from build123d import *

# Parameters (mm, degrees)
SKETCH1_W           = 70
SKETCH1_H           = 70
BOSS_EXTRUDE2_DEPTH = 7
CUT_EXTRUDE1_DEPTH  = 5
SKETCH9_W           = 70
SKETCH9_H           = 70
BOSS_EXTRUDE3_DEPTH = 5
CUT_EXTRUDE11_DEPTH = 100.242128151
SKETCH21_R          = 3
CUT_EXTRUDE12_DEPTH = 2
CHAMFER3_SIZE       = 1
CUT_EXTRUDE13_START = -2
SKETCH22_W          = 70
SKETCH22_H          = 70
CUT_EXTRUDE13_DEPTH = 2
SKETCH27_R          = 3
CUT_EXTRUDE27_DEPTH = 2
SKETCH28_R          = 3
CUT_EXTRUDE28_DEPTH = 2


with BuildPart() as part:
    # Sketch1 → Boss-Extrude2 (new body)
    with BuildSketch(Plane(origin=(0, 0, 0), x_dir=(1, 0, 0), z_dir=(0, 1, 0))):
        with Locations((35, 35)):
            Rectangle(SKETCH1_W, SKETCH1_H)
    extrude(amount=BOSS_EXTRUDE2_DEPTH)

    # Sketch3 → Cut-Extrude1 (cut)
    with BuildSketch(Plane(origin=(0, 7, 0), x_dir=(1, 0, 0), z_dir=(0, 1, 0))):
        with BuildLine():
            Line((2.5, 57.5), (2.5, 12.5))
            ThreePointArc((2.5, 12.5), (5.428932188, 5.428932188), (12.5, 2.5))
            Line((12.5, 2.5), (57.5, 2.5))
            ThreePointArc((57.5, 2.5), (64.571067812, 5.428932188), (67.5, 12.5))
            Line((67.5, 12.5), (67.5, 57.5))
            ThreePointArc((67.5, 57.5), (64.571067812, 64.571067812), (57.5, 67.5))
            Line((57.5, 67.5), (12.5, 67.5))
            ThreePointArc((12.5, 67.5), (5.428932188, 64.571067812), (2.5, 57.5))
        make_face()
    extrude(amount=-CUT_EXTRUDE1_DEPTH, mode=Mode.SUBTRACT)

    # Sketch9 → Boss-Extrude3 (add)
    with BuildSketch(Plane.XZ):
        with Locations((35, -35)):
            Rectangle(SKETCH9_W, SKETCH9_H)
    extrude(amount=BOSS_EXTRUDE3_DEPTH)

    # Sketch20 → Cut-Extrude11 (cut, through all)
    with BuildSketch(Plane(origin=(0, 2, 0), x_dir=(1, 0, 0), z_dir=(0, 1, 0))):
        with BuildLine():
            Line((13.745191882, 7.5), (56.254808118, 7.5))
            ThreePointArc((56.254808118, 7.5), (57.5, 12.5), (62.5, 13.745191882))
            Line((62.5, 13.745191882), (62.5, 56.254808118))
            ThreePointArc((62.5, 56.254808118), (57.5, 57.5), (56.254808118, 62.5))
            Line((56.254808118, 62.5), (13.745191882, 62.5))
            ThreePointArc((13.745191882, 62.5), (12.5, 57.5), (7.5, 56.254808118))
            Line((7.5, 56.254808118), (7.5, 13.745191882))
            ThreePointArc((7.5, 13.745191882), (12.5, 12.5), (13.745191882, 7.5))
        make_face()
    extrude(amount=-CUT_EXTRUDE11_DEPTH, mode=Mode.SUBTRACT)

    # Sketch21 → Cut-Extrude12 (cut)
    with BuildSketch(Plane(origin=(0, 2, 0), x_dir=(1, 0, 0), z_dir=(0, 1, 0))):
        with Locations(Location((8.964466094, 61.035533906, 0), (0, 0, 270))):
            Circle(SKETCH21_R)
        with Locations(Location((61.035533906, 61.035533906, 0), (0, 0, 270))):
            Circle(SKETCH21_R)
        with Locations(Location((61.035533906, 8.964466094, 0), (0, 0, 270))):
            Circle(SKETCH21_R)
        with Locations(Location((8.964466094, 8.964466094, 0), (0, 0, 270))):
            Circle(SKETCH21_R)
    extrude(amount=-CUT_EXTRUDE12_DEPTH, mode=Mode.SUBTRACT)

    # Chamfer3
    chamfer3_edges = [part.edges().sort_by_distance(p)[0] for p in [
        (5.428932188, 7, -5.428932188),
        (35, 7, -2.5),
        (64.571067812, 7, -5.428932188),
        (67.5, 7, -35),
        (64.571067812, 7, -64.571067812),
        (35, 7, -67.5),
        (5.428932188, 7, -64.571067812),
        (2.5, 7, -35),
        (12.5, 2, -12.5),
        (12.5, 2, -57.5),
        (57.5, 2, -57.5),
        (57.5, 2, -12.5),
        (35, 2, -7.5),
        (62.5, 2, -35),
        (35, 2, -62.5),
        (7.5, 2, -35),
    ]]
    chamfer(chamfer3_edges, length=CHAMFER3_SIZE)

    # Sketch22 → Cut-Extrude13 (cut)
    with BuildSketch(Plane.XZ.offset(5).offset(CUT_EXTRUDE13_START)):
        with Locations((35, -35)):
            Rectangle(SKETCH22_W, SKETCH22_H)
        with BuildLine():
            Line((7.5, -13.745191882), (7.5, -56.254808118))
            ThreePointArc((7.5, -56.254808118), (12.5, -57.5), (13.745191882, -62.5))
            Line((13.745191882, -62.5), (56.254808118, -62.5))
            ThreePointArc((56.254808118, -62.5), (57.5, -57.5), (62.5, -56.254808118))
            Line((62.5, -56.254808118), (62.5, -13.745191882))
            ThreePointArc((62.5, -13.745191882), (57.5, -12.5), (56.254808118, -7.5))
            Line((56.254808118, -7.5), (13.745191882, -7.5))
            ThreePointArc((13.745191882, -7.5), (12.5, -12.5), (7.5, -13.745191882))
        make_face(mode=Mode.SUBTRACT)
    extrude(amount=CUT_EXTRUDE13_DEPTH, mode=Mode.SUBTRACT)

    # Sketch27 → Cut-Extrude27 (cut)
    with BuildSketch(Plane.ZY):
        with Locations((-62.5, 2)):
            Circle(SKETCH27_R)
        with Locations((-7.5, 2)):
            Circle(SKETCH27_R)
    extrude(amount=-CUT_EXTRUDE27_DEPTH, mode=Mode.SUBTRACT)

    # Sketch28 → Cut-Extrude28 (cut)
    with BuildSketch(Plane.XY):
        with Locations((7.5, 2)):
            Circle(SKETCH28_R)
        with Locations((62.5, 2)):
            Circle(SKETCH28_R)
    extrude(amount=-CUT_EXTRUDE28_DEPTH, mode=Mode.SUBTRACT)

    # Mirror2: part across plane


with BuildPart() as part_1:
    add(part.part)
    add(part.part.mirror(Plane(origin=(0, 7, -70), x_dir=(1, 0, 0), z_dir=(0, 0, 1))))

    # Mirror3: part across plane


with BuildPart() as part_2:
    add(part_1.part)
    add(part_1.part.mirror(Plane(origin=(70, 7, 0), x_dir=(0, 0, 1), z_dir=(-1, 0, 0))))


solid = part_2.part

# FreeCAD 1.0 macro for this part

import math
import FreeCAD as App
import Part
import Sketcher
from FreeCAD import Vector


def edges_at(feature, points):
    """Names of the edges that pass closest to the given points."""
    edges = feature.Shape.Edges
    near = lambda p: min(range(len(edges)), key=lambda i: edges[i].distToShape(Part.Vertex(*p))[0])
    return sorted({f"Edge{near(p) + 1}" for p in points})


def add_polygon(sketch, points):
    """Adds a closed chain of lines whose ends are joined by coincident constraints."""
    first, n = sketch.GeometryCount, len(points)
    for a, b in zip(points, points[1:] + points[:1]):
        sketch.addGeometry(Part.LineSegment(App.Vector(*a, 0), App.Vector(*b, 0)), False)
    for i in range(n):
        sketch.addConstraint(Sketcher.Constraint("Coincident", first + i, 2, first + (i + 1) % n, 1))

doc = App.newDocument("Part")
body = doc.addObject("PartDesign::Body", "Body")

# Sketch on XZ plane
sketch1 = doc.addObject("Sketcher::SketchObject", "Sketch")
body.addObject(sketch1)
sketch1.AttachmentSupport = (doc.XZ_Plane, [""])
sketch1.MapMode = "FlatFace"
add_polygon(sketch1, [(0, -70), (0, 0), (70, 0), (70, -70)])  # lines 0-3
sketch1.addConstraint(Sketcher.Constraint("Vertical", 0))
sketch1.addConstraint(Sketcher.Constraint("Horizontal", 1))
sketch1.addConstraint(Sketcher.Constraint("Vertical", 2))
sketch1.addConstraint(Sketcher.Constraint("Horizontal", 3))
sketch1.addConstraint(Sketcher.Constraint("Coincident", 0, 2, -1, 1))
sketch1.addConstraint(Sketcher.Constraint("Equal", 3, 0))
sketch1.addConstraint(Sketcher.Constraint("DistanceX", 1, 1, 1, 2, 70.0))
pad1 = doc.addObject("PartDesign::Pad", "Pad")
body.addObject(pad1)
pad1.Profile = sketch1
pad1.Length = 7
pad1.Reversed = True

# Sketch on XZ plane
sketch2 = doc.addObject("Sketcher::SketchObject", "Sketch001")
body.addObject(sketch2)
sketch2.AttachmentSupport = (doc.XZ_Plane, [""])
sketch2.MapMode = "FlatFace"
sketch2.AttachmentOffset = App.Placement(Vector(0, 0, -7), App.Rotation())
sketch2.addGeometry(Part.LineSegment(Vector(2.5, -57.5, 0), Vector(2.5, -12.5, 0)), False)
sketch2.addGeometry(Part.ArcOfCircle(Part.Circle(Vector(12.5, -12.5, 0), Vector(0, 0, 1), 10), math.radians(90), math.radians(180)), False)
sketch2.addGeometry(Part.LineSegment(Vector(12.5, -2.5, 0), Vector(57.5, -2.5, 0)), False)
sketch2.addGeometry(Part.ArcOfCircle(Part.Circle(Vector(57.5, -12.5, 0), Vector(0, 0, 1), 10), math.radians(0), math.radians(90)), False)
sketch2.addGeometry(Part.LineSegment(Vector(67.5, -12.5, 0), Vector(67.5, -57.5, 0)), False)
sketch2.addGeometry(Part.ArcOfCircle(Part.Circle(Vector(57.5, -57.5, 0), Vector(0, 0, 1), 10), math.radians(-90), math.radians(0)), False)
sketch2.addGeometry(Part.LineSegment(Vector(57.5, -67.5, 0), Vector(12.5, -67.5, 0)), False)
sketch2.addGeometry(Part.ArcOfCircle(Part.Circle(Vector(12.5, -57.5, 0), Vector(0, 0, 1), 10), math.radians(180), math.radians(270)), False)
sketch2.addConstraint(Sketcher.Constraint("Tangent", 0, 2, 1, 2))
sketch2.addConstraint(Sketcher.Constraint("Tangent", 1, 1, 2, 1))
sketch2.addConstraint(Sketcher.Constraint("Tangent", 2, 2, 3, 2))
sketch2.addConstraint(Sketcher.Constraint("Tangent", 3, 1, 4, 1))
sketch2.addConstraint(Sketcher.Constraint("Tangent", 4, 2, 5, 2))
sketch2.addConstraint(Sketcher.Constraint("Tangent", 5, 1, 6, 1))
sketch2.addConstraint(Sketcher.Constraint("Tangent", 6, 2, 7, 2))
sketch2.addConstraint(Sketcher.Constraint("Tangent", 7, 1, 0, 1))
sketch2.addConstraint(Sketcher.Constraint("Vertical", 0))
sketch2.addConstraint(Sketcher.Constraint("Horizontal", 2))
sketch2.addConstraint(Sketcher.Constraint("Vertical", 4))
sketch2.addConstraint(Sketcher.Constraint("Horizontal", 6))
sketch2.addConstraint(Sketcher.Constraint("Equal", 1, 3))
sketch2.addConstraint(Sketcher.Constraint("Equal", 3, 5))
sketch2.addConstraint(Sketcher.Constraint("Equal", 5, 7))
sketch2.addConstraint(Sketcher.Constraint("Equal", 6, 0))
sketch2.addConstraint(Sketcher.Constraint("Radius", 1, 10.0))
sketch2.addConstraint(Sketcher.Constraint("DistanceX", 2, 1, 2, 2, 45.0))
sketch2.addConstraint(Sketcher.Constraint("DistanceX", -1, 1, 1, 3, 12.5))
sketch2.addConstraint(Sketcher.Constraint("DistanceY", 1, 3, -1, 1, 12.5))
pocket1 = doc.addObject("PartDesign::Pocket", "Pocket")
body.addObject(pocket1)
pocket1.Profile = sketch2
pocket1.Length = 5
pocket1.Reversed = True

# Sketch on XZ plane
sketch3 = doc.addObject("Sketcher::SketchObject", "Sketch002")
body.addObject(sketch3)
sketch3.AttachmentSupport = (doc.XZ_Plane, [""])
sketch3.MapMode = "FlatFace"
add_polygon(sketch3, [(0, 0), (0, -70), (70, -70), (70, 0)])  # lines 0-3
sketch3.addConstraint(Sketcher.Constraint("Vertical", 0))
sketch3.addConstraint(Sketcher.Constraint("Horizontal", 1))
sketch3.addConstraint(Sketcher.Constraint("Vertical", 2))
sketch3.addConstraint(Sketcher.Constraint("Horizontal", 3))
sketch3.addConstraint(Sketcher.Constraint("Coincident", 3, 2, -1, 1))
sketch3.addConstraint(Sketcher.Constraint("Equal", 3, 0))
sketch3.addConstraint(Sketcher.Constraint("DistanceX", 1, 1, 1, 2, 70.0))
pad2 = doc.addObject("PartDesign::Pad", "Pad001")
body.addObject(pad2)
pad2.Profile = sketch3
pad2.Length = 5

# Sketch on XZ plane
sketch4 = doc.addObject("Sketcher::SketchObject", "Sketch003")
body.addObject(sketch4)
sketch4.AttachmentSupport = (doc.XZ_Plane, [""])
sketch4.MapMode = "FlatFace"
sketch4.AttachmentOffset = App.Placement(Vector(0, 0, -2), App.Rotation())
sketch4.addGeometry(Part.LineSegment(Vector(13.745192, -7.5, 0), Vector(56.254808, -7.5, 0)), False)
sketch4.addGeometry(Part.ArcOfCircle(Part.Circle(Vector(61.035534, -8.964466, 0), Vector(0, 0, 1), 5), math.radians(162.968752), math.radians(287.031248)), False)
sketch4.addGeometry(Part.LineSegment(Vector(62.5, -13.745192, 0), Vector(62.5, -56.254808, 0)), False)
sketch4.addGeometry(Part.ArcOfCircle(Part.Circle(Vector(61.035534, -61.035534, 0), Vector(0, 0, 1), 5), math.radians(72.968752), math.radians(197.031248)), False)
sketch4.addGeometry(Part.LineSegment(Vector(56.254808, -62.5, 0), Vector(13.745192, -62.5, 0)), False)
sketch4.addGeometry(Part.ArcOfCircle(Part.Circle(Vector(8.964466, -61.035534, 0), Vector(0, 0, 1), 5), math.radians(-17.031248), math.radians(107.031248)), False)
sketch4.addGeometry(Part.LineSegment(Vector(7.5, -56.254808, 0), Vector(7.5, -13.745192, 0)), False)
sketch4.addGeometry(Part.ArcOfCircle(Part.Circle(Vector(8.964466, -8.964466, 0), Vector(0, 0, 1), 5), math.radians(-107.031248), math.radians(17.031248)), False)
sketch4.addConstraint(Sketcher.Constraint("Coincident", 0, 2, 1, 1))
sketch4.addConstraint(Sketcher.Constraint("Coincident", 1, 2, 2, 1))
sketch4.addConstraint(Sketcher.Constraint("Coincident", 2, 2, 3, 1))
sketch4.addConstraint(Sketcher.Constraint("Coincident", 3, 2, 4, 1))
sketch4.addConstraint(Sketcher.Constraint("Coincident", 4, 2, 5, 1))
sketch4.addConstraint(Sketcher.Constraint("Coincident", 5, 2, 6, 1))
sketch4.addConstraint(Sketcher.Constraint("Coincident", 6, 2, 7, 1))
sketch4.addConstraint(Sketcher.Constraint("Coincident", 7, 2, 0, 1))
sketch4.addConstraint(Sketcher.Constraint("Horizontal", 0))
sketch4.addConstraint(Sketcher.Constraint("Vertical", 2))
sketch4.addConstraint(Sketcher.Constraint("Horizontal", 4))
sketch4.addConstraint(Sketcher.Constraint("Vertical", 6))
sketch4.addConstraint(Sketcher.Constraint("Equal", 1, 3))
sketch4.addConstraint(Sketcher.Constraint("Equal", 3, 5))
sketch4.addConstraint(Sketcher.Constraint("Equal", 5, 7))
sketch4.addConstraint(Sketcher.Constraint("Horizontal", 3, 3, 5, 3))
sketch4.addConstraint(Sketcher.Constraint("Horizontal", 1, 3, 7, 3))
sketch4.addConstraint(Sketcher.Constraint("Horizontal", 2, 2, 5, 2))
sketch4.addConstraint(Sketcher.Constraint("Horizontal", 1, 2, 6, 2))
sketch4.addConstraint(Sketcher.Constraint("Vertical", 1, 3, 3, 3))
sketch4.addConstraint(Sketcher.Constraint("Vertical", 0, 2, 3, 2))
sketch4.addConstraint(Sketcher.Constraint("Equal", 4, 2))
sketch4.addConstraint(Sketcher.Constraint("Radius", 1, 5.0))
sketch4.addConstraint(Sketcher.Constraint("DistanceY", 0, 2, -1, 1, 7.5))
sketch4.addConstraint(Sketcher.Constraint("DistanceX", -1, 1, 1, 2, 62.5))
sketch4.addConstraint(Sketcher.Constraint("DistanceY", 3, 2, -1, 1, 62.5))
sketch4.addConstraint(Sketcher.Constraint("DistanceX", -1, 1, 5, 2, 7.5))
sketch4.addConstraint(Sketcher.Constraint("DistanceX", 0, 1, 0, 2, 42.509616))
pocket2 = doc.addObject("PartDesign::Pocket", "Pocket001")
body.addObject(pocket2)
pocket2.Profile = sketch4
pocket2.Type = "ThroughAll"
pocket2.Reversed = True

# Sketch on XZ plane
sketch5 = doc.addObject("Sketcher::SketchObject", "Sketch004")
body.addObject(sketch5)
sketch5.AttachmentSupport = (doc.XZ_Plane, [""])
sketch5.MapMode = "FlatFace"
sketch5.AttachmentOffset = App.Placement(Vector(0, 0, -2), App.Rotation())
sketch5.addGeometry(Part.Circle(Vector(8.964466, -61.035534, 0), Vector(0, 0, 1), 3), False)
sketch5.addGeometry(Part.Circle(Vector(61.035534, -61.035534, 0), Vector(0, 0, 1), 3), False)
sketch5.addGeometry(Part.Circle(Vector(61.035534, -8.964466, 0), Vector(0, 0, 1), 3), False)
sketch5.addGeometry(Part.Circle(Vector(8.964466, -8.964466, 0), Vector(0, 0, 1), 3), False)
sketch5.addConstraint(Sketcher.Constraint("Equal", 0, 1))
sketch5.addConstraint(Sketcher.Constraint("Equal", 1, 2))
sketch5.addConstraint(Sketcher.Constraint("Equal", 2, 3))
sketch5.addConstraint(Sketcher.Constraint("Horizontal", 0, 3, 1, 3))
sketch5.addConstraint(Sketcher.Constraint("Horizontal", 2, 3, 3, 3))
sketch5.addConstraint(Sketcher.Constraint("Vertical", 1, 3, 2, 3))
sketch5.addConstraint(Sketcher.Constraint("Vertical", 0, 3, 3, 3))
sketch5.addConstraint(Sketcher.Constraint("Diameter", 0, 6.0))
sketch5.addConstraint(Sketcher.Constraint("DistanceX", -1, 1, 0, 3, 8.964466))
sketch5.addConstraint(Sketcher.Constraint("DistanceY", 0, 3, -1, 1, 61.035534))
sketch5.addConstraint(Sketcher.Constraint("DistanceX", -1, 1, 1, 3, 61.035534))
sketch5.addConstraint(Sketcher.Constraint("DistanceY", 2, 3, -1, 1, 8.964466))
pocket3 = doc.addObject("PartDesign::Pocket", "Pocket002")
body.addObject(pocket3)
pocket3.Profile = sketch5
pocket3.Length = 2
pocket3.Reversed = True
doc.recompute()

chamfer = doc.addObject("PartDesign::Chamfer", "Chamfer")
body.addObject(chamfer)
chamfer.Base = (pocket3, edges_at(pocket3, [
    (5.429, 7, -5.429),
    (35, 7, -2.5),
    (64.571, 7, -5.429),
    (67.5, 7, -35),
    (64.571, 7, -64.571),
    (35, 7, -67.5),
    (5.429, 7, -64.571),
    (2.5, 7, -35),
    (12.5, 2, -12.5),
    (12.5, 2, -57.5),
    (57.5, 2, -57.5),
    (57.5, 2, -12.5),
    (35, 2, -7.5),
    (62.5, 2, -35),
    (35, 2, -62.5),
    (7.5, 2, -35),
]))
chamfer.Size = 1

# Sketch on XZ plane
sketch6 = doc.addObject("Sketcher::SketchObject", "Sketch005")
body.addObject(sketch6)
sketch6.AttachmentSupport = (doc.XZ_Plane, [""])
sketch6.MapMode = "FlatFace"
sketch6.AttachmentOffset = App.Placement(Vector(0, 0, 3), App.Rotation())
add_polygon(sketch6, [(0, 0), (0, -70), (70, -70), (70, 0)])  # lines 0-3
sketch6.addGeometry(Part.LineSegment(Vector(7.5, -56.254808, 0), Vector(7.5, -13.745192, 0)), False)  # 4
sketch6.addGeometry(Part.ArcOfCircle(Part.Circle(Vector(8.964466, -8.964466, 0), Vector(0, 0, 1), 5), math.radians(-107.031248), math.radians(17.031248)), False)  # 5
sketch6.addGeometry(Part.LineSegment(Vector(13.745192, -7.5, 0), Vector(56.254808, -7.5, 0)), False)  # 6
sketch6.addGeometry(Part.ArcOfCircle(Part.Circle(Vector(61.035534, -8.964466, 0), Vector(0, 0, 1), 5), math.radians(162.968752), math.radians(287.031248)), False)  # 7
sketch6.addGeometry(Part.LineSegment(Vector(62.5, -13.745192, 0), Vector(62.5, -56.254808, 0)), False)  # 8
sketch6.addGeometry(Part.ArcOfCircle(Part.Circle(Vector(61.035534, -61.035534, 0), Vector(0, 0, 1), 5), math.radians(72.968752), math.radians(197.031248)), False)  # 9
sketch6.addGeometry(Part.LineSegment(Vector(56.254808, -62.5, 0), Vector(13.745192, -62.5, 0)), False)  # 10
sketch6.addGeometry(Part.ArcOfCircle(Part.Circle(Vector(8.964466, -61.035534, 0), Vector(0, 0, 1), 5), math.radians(-17.031248), math.radians(107.031248)), False)  # 11
sketch6.addConstraint(Sketcher.Constraint("Coincident", 4, 2, 5, 1))
sketch6.addConstraint(Sketcher.Constraint("Coincident", 5, 2, 6, 1))
sketch6.addConstraint(Sketcher.Constraint("Coincident", 6, 2, 7, 1))
sketch6.addConstraint(Sketcher.Constraint("Coincident", 7, 2, 8, 1))
sketch6.addConstraint(Sketcher.Constraint("Coincident", 8, 2, 9, 1))
sketch6.addConstraint(Sketcher.Constraint("Coincident", 9, 2, 10, 1))
sketch6.addConstraint(Sketcher.Constraint("Coincident", 10, 2, 11, 1))
sketch6.addConstraint(Sketcher.Constraint("Coincident", 11, 2, 4, 1))
sketch6.addConstraint(Sketcher.Constraint("Vertical", 0))
sketch6.addConstraint(Sketcher.Constraint("Horizontal", 1))
sketch6.addConstraint(Sketcher.Constraint("Vertical", 2))
sketch6.addConstraint(Sketcher.Constraint("Horizontal", 3))
sketch6.addConstraint(Sketcher.Constraint("Vertical", 4))
sketch6.addConstraint(Sketcher.Constraint("Horizontal", 6))
sketch6.addConstraint(Sketcher.Constraint("Vertical", 8))
sketch6.addConstraint(Sketcher.Constraint("Horizontal", 10))
sketch6.addConstraint(Sketcher.Constraint("Coincident", 3, 2, -1, 1))
sketch6.addConstraint(Sketcher.Constraint("Equal", 5, 7))
sketch6.addConstraint(Sketcher.Constraint("Equal", 7, 9))
sketch6.addConstraint(Sketcher.Constraint("Equal", 9, 11))
sketch6.addConstraint(Sketcher.Constraint("Horizontal", 5, 3, 7, 3))
sketch6.addConstraint(Sketcher.Constraint("Horizontal", 9, 3, 11, 3))
sketch6.addConstraint(Sketcher.Constraint("Horizontal", 4, 2, 7, 2))
sketch6.addConstraint(Sketcher.Constraint("Horizontal", 8, 2, 11, 2))
sketch6.addConstraint(Sketcher.Constraint("Vertical", 7, 3, 9, 3))
sketch6.addConstraint(Sketcher.Constraint("Vertical", 6, 2, 9, 2))
sketch6.addConstraint(Sketcher.Constraint("Equal", 3, 0))
sketch6.addConstraint(Sketcher.Constraint("Equal", 10, 4))
sketch6.addConstraint(Sketcher.Constraint("Radius", 5, 5.0))
sketch6.addConstraint(Sketcher.Constraint("DistanceX", 1, 1, 1, 2, 70.0))
sketch6.addConstraint(Sketcher.Constraint("DistanceX", -1, 1, 4, 2, 7.5))
sketch6.addConstraint(Sketcher.Constraint("DistanceY", 5, 2, -1, 1, 7.5))
sketch6.addConstraint(Sketcher.Constraint("DistanceX", -1, 1, 7, 2, 62.5))
sketch6.addConstraint(Sketcher.Constraint("DistanceY", 9, 2, -1, 1, 62.5))
sketch6.addConstraint(Sketcher.Constraint("DistanceX", 6, 1, 6, 2, 42.509616))
pocket4 = doc.addObject("PartDesign::Pocket", "Pocket003")
body.addObject(pocket4)
pocket4.Profile = sketch6
pocket4.Length = 2
pocket4.Reversed = True

# Sketch on YZ plane
sketch7 = doc.addObject("Sketcher::SketchObject", "Sketch006")
body.addObject(sketch7)
sketch7.AttachmentSupport = (doc.YZ_Plane, [""])
sketch7.MapMode = "FlatFace"
sketch7.addGeometry(Part.Circle(Vector(2, -62.5, 0), Vector(0, 0, 1), 3), False)
sketch7.addGeometry(Part.Circle(Vector(2, -7.5, 0), Vector(0, 0, 1), 3), False)
sketch7.addConstraint(Sketcher.Constraint("Equal", 0, 1))
sketch7.addConstraint(Sketcher.Constraint("Vertical", 0, 3, 1, 3))
sketch7.addConstraint(Sketcher.Constraint("Diameter", 0, 6.0))
sketch7.addConstraint(Sketcher.Constraint("DistanceX", -1, 1, 0, 3, 2.0))
sketch7.addConstraint(Sketcher.Constraint("DistanceY", 0, 3, 1, 3, 55.0))
sketch7.addConstraint(Sketcher.Constraint("DistanceY", 0, 3, -1, 1, 62.5))
pocket5 = doc.addObject("PartDesign::Pocket", "Pocket004")
body.addObject(pocket5)
pocket5.Profile = sketch7
pocket5.Length = 2
pocket5.Reversed = True

# Sketch on XY plane
sketch8 = doc.addObject("Sketcher::SketchObject", "Sketch007")
body.addObject(sketch8)
sketch8.AttachmentSupport = (doc.XY_Plane, [""])
sketch8.MapMode = "FlatFace"
sketch8.addGeometry(Part.Circle(Vector(7.5, 2, 0), Vector(0, 0, 1), 3), False)
sketch8.addGeometry(Part.Circle(Vector(62.5, 2, 0), Vector(0, 0, 1), 3), False)
sketch8.addConstraint(Sketcher.Constraint("Equal", 0, 1))
sketch8.addConstraint(Sketcher.Constraint("Horizontal", 0, 3, 1, 3))
sketch8.addConstraint(Sketcher.Constraint("Diameter", 0, 6.0))
sketch8.addConstraint(Sketcher.Constraint("DistanceY", -1, 1, 0, 3, 2.0))
sketch8.addConstraint(Sketcher.Constraint("DistanceX", 0, 3, 1, 3, 55.0))
sketch8.addConstraint(Sketcher.Constraint("DistanceX", -1, 1, 0, 3, 7.5))
pocket6 = doc.addObject("PartDesign::Pocket", "Pocket005")
body.addObject(pocket6)
pocket6.Profile = sketch8
pocket6.Length = 2
body2 = doc.addObject("PartDesign::Body", "Body001")
doc.recompute()

body2.BaseFeature = body
doc.recompute()

mirroring = doc.addObject("Part::Mirroring", "Mirroring")
mirroring.Source = body
mirroring.Base = Vector(0, 7, -70)
mirroring.Normal = Vector(0, 0, 1)
body3 = doc.addObject("PartDesign::Body", "Body002")
body3.BaseFeature = mirroring
boolean = doc.addObject("PartDesign::Boolean", "Boolean")
body2.addObject(boolean)
boolean.Type = "Fuse"
boolean.addObjects([body3])
doc.recompute()
body4 = doc.addObject("PartDesign::Body", "Body003")
doc.recompute()

body4.BaseFeature = body2
doc.recompute()

mirroring2 = doc.addObject("Part::Mirroring", "Mirroring001")
mirroring2.Source = body2
mirroring2.Base = Vector(70, 7, 0)
mirroring2.Normal = Vector(-1, 0, 0)
body5 = doc.addObject("PartDesign::Body", "Body004")
body5.BaseFeature = mirroring2
boolean2 = doc.addObject("PartDesign::Boolean", "Boolean001")
body4.addObject(boolean2)
boolean2.Type = "Fuse"
boolean2.addObjects([body5])
doc.recompute()
mirroring.Visibility = False
mirroring2.Visibility = False

doc.recompute()
